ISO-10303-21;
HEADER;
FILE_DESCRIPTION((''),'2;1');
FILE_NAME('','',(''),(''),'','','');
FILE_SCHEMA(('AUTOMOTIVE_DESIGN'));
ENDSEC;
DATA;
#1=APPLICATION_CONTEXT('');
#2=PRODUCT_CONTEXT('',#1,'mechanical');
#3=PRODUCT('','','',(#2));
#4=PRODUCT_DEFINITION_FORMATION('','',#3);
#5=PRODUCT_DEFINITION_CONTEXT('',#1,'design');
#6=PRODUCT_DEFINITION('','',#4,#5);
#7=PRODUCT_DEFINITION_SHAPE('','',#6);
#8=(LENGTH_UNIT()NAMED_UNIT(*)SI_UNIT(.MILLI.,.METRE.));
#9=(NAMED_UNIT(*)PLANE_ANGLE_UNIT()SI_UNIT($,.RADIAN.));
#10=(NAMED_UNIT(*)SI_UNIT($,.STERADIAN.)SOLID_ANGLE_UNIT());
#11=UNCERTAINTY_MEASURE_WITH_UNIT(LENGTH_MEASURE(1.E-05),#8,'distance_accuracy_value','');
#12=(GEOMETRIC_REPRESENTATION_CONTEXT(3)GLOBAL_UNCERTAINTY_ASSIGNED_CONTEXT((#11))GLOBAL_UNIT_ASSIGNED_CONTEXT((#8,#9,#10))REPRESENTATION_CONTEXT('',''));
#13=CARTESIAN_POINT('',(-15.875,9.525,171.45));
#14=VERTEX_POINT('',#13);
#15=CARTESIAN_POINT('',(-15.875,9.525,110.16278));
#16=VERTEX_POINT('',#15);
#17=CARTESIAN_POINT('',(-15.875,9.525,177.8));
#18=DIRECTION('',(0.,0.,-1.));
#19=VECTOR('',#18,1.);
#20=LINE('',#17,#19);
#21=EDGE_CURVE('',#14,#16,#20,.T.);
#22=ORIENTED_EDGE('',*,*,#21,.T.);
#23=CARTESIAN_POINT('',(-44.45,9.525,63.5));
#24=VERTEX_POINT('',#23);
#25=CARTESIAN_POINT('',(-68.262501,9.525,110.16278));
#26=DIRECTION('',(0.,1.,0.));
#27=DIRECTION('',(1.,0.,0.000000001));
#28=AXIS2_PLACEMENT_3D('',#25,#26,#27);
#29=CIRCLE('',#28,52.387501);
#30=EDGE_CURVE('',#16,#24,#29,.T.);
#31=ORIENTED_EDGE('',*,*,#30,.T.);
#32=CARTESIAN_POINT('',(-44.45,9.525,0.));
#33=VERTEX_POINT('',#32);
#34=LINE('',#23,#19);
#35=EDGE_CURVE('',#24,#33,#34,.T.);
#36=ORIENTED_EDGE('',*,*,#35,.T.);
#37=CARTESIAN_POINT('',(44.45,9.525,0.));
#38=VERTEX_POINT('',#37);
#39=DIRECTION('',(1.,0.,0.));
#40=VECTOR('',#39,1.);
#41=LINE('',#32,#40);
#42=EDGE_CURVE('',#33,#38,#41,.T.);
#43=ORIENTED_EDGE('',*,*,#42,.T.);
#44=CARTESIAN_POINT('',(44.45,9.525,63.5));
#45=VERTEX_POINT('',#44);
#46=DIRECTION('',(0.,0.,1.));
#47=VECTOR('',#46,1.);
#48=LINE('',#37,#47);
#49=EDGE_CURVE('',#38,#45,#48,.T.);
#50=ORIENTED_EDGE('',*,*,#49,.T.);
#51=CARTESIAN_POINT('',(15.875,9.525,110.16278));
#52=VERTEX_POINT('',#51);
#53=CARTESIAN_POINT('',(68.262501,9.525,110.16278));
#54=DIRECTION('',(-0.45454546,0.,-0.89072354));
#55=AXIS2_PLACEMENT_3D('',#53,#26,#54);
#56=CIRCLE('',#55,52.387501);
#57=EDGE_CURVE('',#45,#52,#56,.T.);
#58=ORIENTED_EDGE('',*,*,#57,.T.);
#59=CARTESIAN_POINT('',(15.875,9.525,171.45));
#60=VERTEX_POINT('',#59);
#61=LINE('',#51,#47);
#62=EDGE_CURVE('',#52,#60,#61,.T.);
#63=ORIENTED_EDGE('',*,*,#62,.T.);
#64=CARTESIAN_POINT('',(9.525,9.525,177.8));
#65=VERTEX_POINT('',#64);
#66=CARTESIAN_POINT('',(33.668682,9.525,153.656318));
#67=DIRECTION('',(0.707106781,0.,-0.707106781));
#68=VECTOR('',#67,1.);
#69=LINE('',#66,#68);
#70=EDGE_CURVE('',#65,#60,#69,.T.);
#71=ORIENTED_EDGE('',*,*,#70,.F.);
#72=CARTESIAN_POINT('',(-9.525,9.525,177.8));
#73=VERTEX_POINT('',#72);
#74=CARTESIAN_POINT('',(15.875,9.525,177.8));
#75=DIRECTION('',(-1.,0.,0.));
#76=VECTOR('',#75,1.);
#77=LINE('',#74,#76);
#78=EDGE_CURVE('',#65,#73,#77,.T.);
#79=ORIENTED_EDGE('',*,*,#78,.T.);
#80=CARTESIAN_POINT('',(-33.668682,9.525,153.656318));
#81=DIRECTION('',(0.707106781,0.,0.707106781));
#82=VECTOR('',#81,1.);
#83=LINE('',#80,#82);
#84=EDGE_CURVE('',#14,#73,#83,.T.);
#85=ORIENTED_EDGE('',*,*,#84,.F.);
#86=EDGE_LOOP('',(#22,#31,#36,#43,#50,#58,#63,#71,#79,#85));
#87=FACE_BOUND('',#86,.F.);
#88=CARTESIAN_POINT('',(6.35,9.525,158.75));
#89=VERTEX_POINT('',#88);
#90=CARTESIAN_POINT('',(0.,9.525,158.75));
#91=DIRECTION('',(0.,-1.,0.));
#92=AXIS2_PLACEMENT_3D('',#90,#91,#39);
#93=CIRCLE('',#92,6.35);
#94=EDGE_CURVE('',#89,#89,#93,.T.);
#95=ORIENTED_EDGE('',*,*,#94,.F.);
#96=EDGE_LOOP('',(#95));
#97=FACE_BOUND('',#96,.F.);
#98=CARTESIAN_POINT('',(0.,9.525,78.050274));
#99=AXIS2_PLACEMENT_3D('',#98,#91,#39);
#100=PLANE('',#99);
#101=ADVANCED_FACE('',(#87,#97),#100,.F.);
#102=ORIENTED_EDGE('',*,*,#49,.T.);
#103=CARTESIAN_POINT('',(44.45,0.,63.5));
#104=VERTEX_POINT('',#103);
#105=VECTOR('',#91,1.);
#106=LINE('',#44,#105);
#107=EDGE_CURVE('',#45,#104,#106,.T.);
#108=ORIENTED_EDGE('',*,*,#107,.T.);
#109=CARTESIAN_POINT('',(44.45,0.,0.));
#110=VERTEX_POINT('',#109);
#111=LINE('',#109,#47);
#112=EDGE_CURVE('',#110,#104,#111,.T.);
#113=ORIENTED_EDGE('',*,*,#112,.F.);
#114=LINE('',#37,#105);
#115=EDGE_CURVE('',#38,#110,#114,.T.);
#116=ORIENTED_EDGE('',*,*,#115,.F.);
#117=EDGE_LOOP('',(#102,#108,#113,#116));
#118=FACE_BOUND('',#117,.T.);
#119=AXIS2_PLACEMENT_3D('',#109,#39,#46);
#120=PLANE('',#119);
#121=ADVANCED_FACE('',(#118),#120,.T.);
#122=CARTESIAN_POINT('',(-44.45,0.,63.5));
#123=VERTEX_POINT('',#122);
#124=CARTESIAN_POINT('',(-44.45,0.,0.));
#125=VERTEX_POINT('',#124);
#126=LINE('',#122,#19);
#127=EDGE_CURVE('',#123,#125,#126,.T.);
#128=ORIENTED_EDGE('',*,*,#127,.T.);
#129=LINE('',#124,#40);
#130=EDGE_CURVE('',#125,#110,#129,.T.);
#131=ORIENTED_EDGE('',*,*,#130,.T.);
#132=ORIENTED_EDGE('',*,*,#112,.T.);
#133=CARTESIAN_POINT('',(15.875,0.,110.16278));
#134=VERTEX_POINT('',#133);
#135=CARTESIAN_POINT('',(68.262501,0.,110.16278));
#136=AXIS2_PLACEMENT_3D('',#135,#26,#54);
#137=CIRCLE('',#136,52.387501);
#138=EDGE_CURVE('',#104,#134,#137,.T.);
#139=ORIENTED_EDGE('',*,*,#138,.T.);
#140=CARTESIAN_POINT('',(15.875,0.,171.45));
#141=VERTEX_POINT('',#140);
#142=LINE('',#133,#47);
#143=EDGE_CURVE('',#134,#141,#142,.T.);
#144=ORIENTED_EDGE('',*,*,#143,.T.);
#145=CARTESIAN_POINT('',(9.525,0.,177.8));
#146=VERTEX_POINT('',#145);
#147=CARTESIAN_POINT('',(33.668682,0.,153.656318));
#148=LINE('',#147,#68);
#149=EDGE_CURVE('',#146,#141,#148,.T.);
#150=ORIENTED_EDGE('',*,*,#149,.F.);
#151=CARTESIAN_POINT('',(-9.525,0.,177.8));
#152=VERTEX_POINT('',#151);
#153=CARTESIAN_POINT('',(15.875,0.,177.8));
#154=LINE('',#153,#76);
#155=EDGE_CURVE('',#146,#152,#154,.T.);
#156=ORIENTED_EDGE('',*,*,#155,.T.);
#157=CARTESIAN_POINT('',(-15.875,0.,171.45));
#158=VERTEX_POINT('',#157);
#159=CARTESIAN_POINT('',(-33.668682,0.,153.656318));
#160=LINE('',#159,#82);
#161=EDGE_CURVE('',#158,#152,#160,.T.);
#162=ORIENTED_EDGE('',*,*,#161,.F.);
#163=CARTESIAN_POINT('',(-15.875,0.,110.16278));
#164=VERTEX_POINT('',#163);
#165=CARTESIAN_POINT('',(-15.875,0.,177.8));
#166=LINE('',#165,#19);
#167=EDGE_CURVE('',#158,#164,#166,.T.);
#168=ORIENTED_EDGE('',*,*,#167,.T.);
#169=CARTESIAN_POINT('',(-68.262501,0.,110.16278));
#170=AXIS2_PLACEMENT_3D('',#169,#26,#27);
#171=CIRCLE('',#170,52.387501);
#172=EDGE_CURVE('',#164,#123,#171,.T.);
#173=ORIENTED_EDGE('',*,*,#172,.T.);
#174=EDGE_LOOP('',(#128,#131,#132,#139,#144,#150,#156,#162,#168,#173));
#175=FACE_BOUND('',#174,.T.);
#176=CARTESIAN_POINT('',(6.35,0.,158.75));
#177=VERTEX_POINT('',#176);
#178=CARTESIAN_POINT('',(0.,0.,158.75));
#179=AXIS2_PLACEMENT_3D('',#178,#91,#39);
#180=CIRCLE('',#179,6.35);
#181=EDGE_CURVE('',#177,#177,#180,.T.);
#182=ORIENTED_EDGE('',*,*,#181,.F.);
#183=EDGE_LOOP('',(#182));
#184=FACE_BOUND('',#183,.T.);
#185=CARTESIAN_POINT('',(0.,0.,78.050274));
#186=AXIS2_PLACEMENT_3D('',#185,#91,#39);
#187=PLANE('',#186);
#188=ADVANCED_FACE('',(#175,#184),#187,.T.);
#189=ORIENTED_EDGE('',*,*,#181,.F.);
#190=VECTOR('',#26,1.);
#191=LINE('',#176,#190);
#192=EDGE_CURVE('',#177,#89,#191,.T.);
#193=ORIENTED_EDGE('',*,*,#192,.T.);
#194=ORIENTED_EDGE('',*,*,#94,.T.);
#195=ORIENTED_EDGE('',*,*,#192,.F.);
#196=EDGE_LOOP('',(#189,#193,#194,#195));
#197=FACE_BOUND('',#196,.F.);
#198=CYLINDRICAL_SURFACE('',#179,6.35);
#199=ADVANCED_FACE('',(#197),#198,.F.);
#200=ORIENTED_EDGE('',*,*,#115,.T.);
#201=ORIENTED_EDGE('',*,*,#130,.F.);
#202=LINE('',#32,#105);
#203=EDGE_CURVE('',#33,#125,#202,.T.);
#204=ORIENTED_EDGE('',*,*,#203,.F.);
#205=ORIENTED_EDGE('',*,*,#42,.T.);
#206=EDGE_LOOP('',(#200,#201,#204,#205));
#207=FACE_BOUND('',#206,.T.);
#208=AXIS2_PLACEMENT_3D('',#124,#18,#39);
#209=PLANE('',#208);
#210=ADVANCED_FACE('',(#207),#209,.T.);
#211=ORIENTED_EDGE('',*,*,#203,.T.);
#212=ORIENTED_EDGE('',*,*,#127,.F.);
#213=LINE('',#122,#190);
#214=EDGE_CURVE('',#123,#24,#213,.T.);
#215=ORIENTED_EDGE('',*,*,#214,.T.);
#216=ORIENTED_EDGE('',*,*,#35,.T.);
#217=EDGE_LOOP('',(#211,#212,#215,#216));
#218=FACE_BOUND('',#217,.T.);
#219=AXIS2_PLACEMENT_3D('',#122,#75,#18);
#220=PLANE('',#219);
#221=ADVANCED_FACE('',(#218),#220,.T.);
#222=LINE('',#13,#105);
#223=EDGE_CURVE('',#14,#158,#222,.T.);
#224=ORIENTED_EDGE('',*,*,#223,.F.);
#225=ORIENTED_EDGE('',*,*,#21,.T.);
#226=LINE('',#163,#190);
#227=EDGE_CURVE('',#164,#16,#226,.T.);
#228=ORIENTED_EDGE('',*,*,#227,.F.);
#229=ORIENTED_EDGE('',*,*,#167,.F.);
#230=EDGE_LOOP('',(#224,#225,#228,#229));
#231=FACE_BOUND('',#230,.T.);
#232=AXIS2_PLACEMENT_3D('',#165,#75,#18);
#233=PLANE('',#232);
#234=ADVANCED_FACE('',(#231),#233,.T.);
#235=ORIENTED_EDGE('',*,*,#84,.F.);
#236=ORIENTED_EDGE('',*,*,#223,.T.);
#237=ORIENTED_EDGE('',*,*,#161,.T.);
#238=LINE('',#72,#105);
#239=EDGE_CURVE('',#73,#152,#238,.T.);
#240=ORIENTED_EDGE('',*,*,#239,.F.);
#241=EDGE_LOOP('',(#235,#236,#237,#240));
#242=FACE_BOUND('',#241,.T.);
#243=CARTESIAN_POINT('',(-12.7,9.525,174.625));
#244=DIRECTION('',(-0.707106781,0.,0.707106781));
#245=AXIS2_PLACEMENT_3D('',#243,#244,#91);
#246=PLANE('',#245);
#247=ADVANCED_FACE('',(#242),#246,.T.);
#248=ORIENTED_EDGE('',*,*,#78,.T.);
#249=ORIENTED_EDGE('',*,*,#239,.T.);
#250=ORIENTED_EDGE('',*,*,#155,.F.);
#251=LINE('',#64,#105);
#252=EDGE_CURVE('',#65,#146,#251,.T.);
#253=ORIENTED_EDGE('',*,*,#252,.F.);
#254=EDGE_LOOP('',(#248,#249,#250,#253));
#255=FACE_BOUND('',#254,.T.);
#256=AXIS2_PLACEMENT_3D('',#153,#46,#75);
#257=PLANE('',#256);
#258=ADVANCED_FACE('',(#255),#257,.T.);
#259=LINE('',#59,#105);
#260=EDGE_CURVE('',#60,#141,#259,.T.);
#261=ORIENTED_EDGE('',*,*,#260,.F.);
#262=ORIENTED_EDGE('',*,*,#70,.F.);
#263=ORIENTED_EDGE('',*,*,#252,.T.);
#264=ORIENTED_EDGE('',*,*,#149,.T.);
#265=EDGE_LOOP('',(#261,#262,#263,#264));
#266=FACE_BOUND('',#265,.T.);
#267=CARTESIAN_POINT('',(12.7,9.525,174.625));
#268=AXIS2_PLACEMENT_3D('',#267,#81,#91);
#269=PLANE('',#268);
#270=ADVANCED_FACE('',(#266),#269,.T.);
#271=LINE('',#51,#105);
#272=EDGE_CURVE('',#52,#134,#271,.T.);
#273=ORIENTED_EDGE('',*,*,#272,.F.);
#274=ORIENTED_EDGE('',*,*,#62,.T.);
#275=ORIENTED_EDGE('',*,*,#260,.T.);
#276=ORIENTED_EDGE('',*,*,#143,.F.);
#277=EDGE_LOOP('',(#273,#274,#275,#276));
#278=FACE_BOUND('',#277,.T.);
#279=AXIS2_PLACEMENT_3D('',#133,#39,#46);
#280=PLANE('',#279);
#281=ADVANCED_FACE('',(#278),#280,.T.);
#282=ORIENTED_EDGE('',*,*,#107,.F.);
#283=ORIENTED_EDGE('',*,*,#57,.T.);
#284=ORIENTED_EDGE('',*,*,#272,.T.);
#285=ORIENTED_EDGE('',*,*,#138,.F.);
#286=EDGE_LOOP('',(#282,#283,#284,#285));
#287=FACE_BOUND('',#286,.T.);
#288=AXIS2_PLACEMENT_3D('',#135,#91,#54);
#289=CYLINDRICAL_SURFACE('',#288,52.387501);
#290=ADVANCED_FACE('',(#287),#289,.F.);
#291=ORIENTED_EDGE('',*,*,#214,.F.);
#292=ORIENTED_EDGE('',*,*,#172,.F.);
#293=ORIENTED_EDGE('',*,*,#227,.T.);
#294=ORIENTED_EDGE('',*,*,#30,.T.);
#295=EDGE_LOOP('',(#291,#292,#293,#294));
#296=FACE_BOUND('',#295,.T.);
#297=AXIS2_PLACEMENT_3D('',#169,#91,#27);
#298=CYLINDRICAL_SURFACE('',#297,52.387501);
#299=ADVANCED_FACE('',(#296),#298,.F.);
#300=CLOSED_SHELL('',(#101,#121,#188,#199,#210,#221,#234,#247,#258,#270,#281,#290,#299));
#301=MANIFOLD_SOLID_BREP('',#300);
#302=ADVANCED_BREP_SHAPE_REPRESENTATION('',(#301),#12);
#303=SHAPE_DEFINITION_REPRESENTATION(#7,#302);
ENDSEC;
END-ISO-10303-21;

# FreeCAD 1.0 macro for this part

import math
import FreeCAD as App
import Part
import Sketcher
from FreeCAD import Vector
Q = App.Units.Quantity


def edges_at(feature, points):
    """Names of the edges that pass closest to the given points."""
    edges = feature.Shape.Edges
    near = lambda p: min(range(len(edges)), key=lambda i: edges[i].distToShape(Part.Vertex(*p))[0])
    return sorted({f"Edge{near(p) + 1}" for p in points})

doc = App.newDocument("Part")
params = doc.addObject("Spreadsheet::Sheet", "Params")
for row, (alias, value) in enumerate([
    ("sketch1_width", "3.5 in"),
    ("sketch1_height", "2.5 in"),
    ("sketch1_radius", "2.0625 in"),
    ("sketch1_width2", "1.25 in"),
    ("pad1_length", "0.375 in"),
    ("sketch2_width", "3.5 in"),
    ("sketch2_height", "2.5 in"),
    ("sketch2_radius", "2.0625 in"),
    ("sketch2_width2", "1.25 in"),
    ("pad2_length", "0.25 in"),
    ("sketch3_diameter", "0.5 in"),
    ("chamfer_size", "0.25 in"),
], start=1):
    params.set(f"A{row}", alias)
    params.set(f"B{row}", "=" + value)
    params.setAlias(f"B{row}", alias)

body = doc.addObject("PartDesign::Body", "Body")

sketch1 = body.newObject("Sketcher::SketchObject", "Sketch")
sketch1.AttachmentSupport = (doc.getObject("XZ_Plane"), [""])
sketch1.MapMode = "FlatFace"
sketch1.addGeometry(Part.LineSegment(Vector(-44, 64, 0), Vector(-44, 0, 0)), False)
sketch1.addGeometry(Part.LineSegment(Vector(-44, 0, 0), Vector(44, 0, 0)), False)
sketch1.addGeometry(Part.LineSegment(Vector(44, 0, 0), Vector(44, 64, 0)), False)
sketch1.addGeometry(Part.ArcOfCircle(Part.Circle(Vector(68, 110, 0), Vector(0, 0, 1), 52), math.radians(180), math.radians(243)), False)
sketch1.addGeometry(Part.LineSegment(Vector(16, 110, 0), Vector(16, 178, 0)), False)
sketch1.addGeometry(Part.LineSegment(Vector(16, 178, 0), Vector(-16, 178, 0)), False)
sketch1.addGeometry(Part.LineSegment(Vector(-16, 178, 0), Vector(-16, 110, 0)), False)
sketch1.addGeometry(Part.ArcOfCircle(Part.Circle(Vector(-68, 110, 0), Vector(0, 0, 1), 52), math.radians(-63), math.radians(0)), False)
sketch1.addConstraint(Sketcher.Constraint("Coincident", 0, 2, 1, 1))
sketch1.addConstraint(Sketcher.Constraint("Coincident", 1, 2, 2, 1))
sketch1.addConstraint(Sketcher.Constraint("Coincident", 2, 2, 3, 2))
sketch1.addConstraint(Sketcher.Constraint("Tangent", 3, 1, 4, 1))
sketch1.addConstraint(Sketcher.Constraint("Coincident", 4, 2, 5, 1))
sketch1.addConstraint(Sketcher.Constraint("Coincident", 5, 2, 6, 1))
sketch1.addConstraint(Sketcher.Constraint("Tangent", 6, 2, 7, 2))
sketch1.addConstraint(Sketcher.Constraint("Coincident", 7, 1, 0, 1))
sketch1.addConstraint(Sketcher.Constraint("Vertical", 0))
sketch1.addConstraint(Sketcher.Constraint("Horizontal", 1))
sketch1.addConstraint(Sketcher.Constraint("Vertical", 2))
sketch1.addConstraint(Sketcher.Constraint("Vertical", 4))
sketch1.addConstraint(Sketcher.Constraint("Horizontal", 5))
sketch1.addConstraint(Sketcher.Constraint("Vertical", 6))
sketch1.addConstraint(Sketcher.Constraint("Equal", 3, 7))
sketch1.addConstraint(Sketcher.Constraint("Symmetric", 0, 2, 1, 2, -1, 1))
sketch1.addConstraint(Sketcher.Constraint("Symmetric", 3, 3, 7, 3, -2))
sketch1.addConstraint(Sketcher.Constraint("DistanceX", 1, 1, 1, 2, Q("3.5 in")))
sketch1.addConstraint(Sketcher.Constraint("DistanceY", 0, 2, 0, 1, Q("2.5 in")))
sketch1.addConstraint(Sketcher.Constraint("DistanceY", -1, 1, 4, 2, Q("7 in")))
sketch1.addConstraint(Sketcher.Constraint("Radius", 3, Q("2.0625 in")))
sketch1.addConstraint(Sketcher.Constraint("DistanceX", 5, 2, 5, 1, Q("1.25 in")))
sketch1.setExpression("Constraints[17]", "Params.sketch1_width")
sketch1.setExpression("Constraints[18]", "Params.sketch1_height")
sketch1.setExpression("Constraints[20]", "Params.sketch1_radius")
sketch1.setExpression("Constraints[21]", "Params.sketch1_width2")
pad1 = body.newObject("PartDesign::Pad", "Pad")
pad1.Profile = sketch1
pad1.setExpression("Length", "Params.pad1_length")
pad1.Reversed = True

sketch2 = body.newObject("Sketcher::SketchObject", "Sketch001")
sketch2.AttachmentSupport = (doc.getObject("XZ_Plane"), [""])
sketch2.MapMode = "FlatFace"
sketch2.addGeometry(Part.LineSegment(Vector(-44, 64, 0), Vector(-44, 0, 0)), False)
sketch2.addGeometry(Part.LineSegment(Vector(-44, 0, 0), Vector(44, 0, 0)), False)
sketch2.addGeometry(Part.LineSegment(Vector(44, 0, 0), Vector(44, 64, 0)), False)
sketch2.addGeometry(Part.ArcOfCircle(Part.Circle(Vector(68, 110, 0), Vector(0, 0, 1), 52), math.radians(180), math.radians(243)), False)
sketch2.addGeometry(Part.LineSegment(Vector(16, 110, 0), Vector(16, 178, 0)), False)
sketch2.addGeometry(Part.LineSegment(Vector(16, 178, 0), Vector(-16, 178, 0)), False)
sketch2.addGeometry(Part.LineSegment(Vector(-16, 178, 0), Vector(-16, 110, 0)), False)
sketch2.addGeometry(Part.ArcOfCircle(Part.Circle(Vector(-68, 110, 0), Vector(0, 0, 1), 52), math.radians(-63), math.radians(0)), False)
sketch2.addConstraint(Sketcher.Constraint("Coincident", 0, 2, 1, 1))
sketch2.addConstraint(Sketcher.Constraint("Coincident", 1, 2, 2, 1))
sketch2.addConstraint(Sketcher.Constraint("Coincident", 2, 2, 3, 2))
sketch2.addConstraint(Sketcher.Constraint("Tangent", 3, 1, 4, 1))
sketch2.addConstraint(Sketcher.Constraint("Coincident", 4, 2, 5, 1))
sketch2.addConstraint(Sketcher.Constraint("Coincident", 5, 2, 6, 1))
sketch2.addConstraint(Sketcher.Constraint("Tangent", 6, 2, 7, 2))
sketch2.addConstraint(Sketcher.Constraint("Coincident", 7, 1, 0, 1))
sketch2.addConstraint(Sketcher.Constraint("Vertical", 0))
sketch2.addConstraint(Sketcher.Constraint("Horizontal", 1))
sketch2.addConstraint(Sketcher.Constraint("Vertical", 2))
sketch2.addConstraint(Sketcher.Constraint("Vertical", 4))
sketch2.addConstraint(Sketcher.Constraint("Horizontal", 5))
sketch2.addConstraint(Sketcher.Constraint("Vertical", 6))
sketch2.addConstraint(Sketcher.Constraint("Equal", 3, 7))
sketch2.addConstraint(Sketcher.Constraint("Symmetric", 0, 2, 1, 2, -1, 1))
sketch2.addConstraint(Sketcher.Constraint("Symmetric", 3, 3, 7, 3, -2))
sketch2.addConstraint(Sketcher.Constraint("DistanceX", 1, 1, 1, 2, Q("3.5 in")))
sketch2.addConstraint(Sketcher.Constraint("DistanceY", 0, 2, 0, 1, Q("2.5 in")))
sketch2.addConstraint(Sketcher.Constraint("DistanceY", -1, 1, 4, 2, Q("7 in")))
sketch2.addConstraint(Sketcher.Constraint("Radius", 3, Q("2.0625 in")))
sketch2.addConstraint(Sketcher.Constraint("DistanceX", 5, 2, 5, 1, Q("1.25 in")))
sketch2.setExpression("Constraints[17]", "Params.sketch2_width")
sketch2.setExpression("Constraints[18]", "Params.sketch2_height")
sketch2.setExpression("Constraints[20]", "Params.sketch2_radius")
sketch2.setExpression("Constraints[21]", "Params.sketch2_width2")
pad2 = body.newObject("PartDesign::Pad", "Pad001")
pad2.Profile = sketch2
pad2.setExpression("Length", "Params.pad2_length")
pad2.Reversed = True

sketch3 = body.newObject("Sketcher::SketchObject", "Sketch002")
sketch3.AttachmentSupport = (doc.getObject("XZ_Plane"), [""])
sketch3.MapMode = "FlatFace"
sketch3.addGeometry(Part.Circle(Vector(0, 159, 0), Vector(0, 0, 1), 6), False)
sketch3.addConstraint(Sketcher.Constraint("PointOnObject", 0, 3, -2))
sketch3.addConstraint(Sketcher.Constraint("Diameter", 0, Q("0.5 in")))
sketch3.addConstraint(Sketcher.Constraint("DistanceY", -1, 1, 0, 3, Q("6.25 in")))
sketch3.setExpression("Constraints[1]", "Params.sketch3_diameter")
pocket1 = body.newObject("PartDesign::Pocket", "Pocket")
pocket1.Profile = sketch3
pocket1.Type = "ThroughAll"
doc.recompute()

chamfer = body.newObject("PartDesign::Chamfer", "Chamfer")
chamfer.Base = (pocket1, edges_at(pocket1, [(15.875, 4.763, 177.8), (-15.875, 4.763, 177.8)]))
chamfer.setExpression("Size", "Params.chamfer_size")

doc.recompute()
